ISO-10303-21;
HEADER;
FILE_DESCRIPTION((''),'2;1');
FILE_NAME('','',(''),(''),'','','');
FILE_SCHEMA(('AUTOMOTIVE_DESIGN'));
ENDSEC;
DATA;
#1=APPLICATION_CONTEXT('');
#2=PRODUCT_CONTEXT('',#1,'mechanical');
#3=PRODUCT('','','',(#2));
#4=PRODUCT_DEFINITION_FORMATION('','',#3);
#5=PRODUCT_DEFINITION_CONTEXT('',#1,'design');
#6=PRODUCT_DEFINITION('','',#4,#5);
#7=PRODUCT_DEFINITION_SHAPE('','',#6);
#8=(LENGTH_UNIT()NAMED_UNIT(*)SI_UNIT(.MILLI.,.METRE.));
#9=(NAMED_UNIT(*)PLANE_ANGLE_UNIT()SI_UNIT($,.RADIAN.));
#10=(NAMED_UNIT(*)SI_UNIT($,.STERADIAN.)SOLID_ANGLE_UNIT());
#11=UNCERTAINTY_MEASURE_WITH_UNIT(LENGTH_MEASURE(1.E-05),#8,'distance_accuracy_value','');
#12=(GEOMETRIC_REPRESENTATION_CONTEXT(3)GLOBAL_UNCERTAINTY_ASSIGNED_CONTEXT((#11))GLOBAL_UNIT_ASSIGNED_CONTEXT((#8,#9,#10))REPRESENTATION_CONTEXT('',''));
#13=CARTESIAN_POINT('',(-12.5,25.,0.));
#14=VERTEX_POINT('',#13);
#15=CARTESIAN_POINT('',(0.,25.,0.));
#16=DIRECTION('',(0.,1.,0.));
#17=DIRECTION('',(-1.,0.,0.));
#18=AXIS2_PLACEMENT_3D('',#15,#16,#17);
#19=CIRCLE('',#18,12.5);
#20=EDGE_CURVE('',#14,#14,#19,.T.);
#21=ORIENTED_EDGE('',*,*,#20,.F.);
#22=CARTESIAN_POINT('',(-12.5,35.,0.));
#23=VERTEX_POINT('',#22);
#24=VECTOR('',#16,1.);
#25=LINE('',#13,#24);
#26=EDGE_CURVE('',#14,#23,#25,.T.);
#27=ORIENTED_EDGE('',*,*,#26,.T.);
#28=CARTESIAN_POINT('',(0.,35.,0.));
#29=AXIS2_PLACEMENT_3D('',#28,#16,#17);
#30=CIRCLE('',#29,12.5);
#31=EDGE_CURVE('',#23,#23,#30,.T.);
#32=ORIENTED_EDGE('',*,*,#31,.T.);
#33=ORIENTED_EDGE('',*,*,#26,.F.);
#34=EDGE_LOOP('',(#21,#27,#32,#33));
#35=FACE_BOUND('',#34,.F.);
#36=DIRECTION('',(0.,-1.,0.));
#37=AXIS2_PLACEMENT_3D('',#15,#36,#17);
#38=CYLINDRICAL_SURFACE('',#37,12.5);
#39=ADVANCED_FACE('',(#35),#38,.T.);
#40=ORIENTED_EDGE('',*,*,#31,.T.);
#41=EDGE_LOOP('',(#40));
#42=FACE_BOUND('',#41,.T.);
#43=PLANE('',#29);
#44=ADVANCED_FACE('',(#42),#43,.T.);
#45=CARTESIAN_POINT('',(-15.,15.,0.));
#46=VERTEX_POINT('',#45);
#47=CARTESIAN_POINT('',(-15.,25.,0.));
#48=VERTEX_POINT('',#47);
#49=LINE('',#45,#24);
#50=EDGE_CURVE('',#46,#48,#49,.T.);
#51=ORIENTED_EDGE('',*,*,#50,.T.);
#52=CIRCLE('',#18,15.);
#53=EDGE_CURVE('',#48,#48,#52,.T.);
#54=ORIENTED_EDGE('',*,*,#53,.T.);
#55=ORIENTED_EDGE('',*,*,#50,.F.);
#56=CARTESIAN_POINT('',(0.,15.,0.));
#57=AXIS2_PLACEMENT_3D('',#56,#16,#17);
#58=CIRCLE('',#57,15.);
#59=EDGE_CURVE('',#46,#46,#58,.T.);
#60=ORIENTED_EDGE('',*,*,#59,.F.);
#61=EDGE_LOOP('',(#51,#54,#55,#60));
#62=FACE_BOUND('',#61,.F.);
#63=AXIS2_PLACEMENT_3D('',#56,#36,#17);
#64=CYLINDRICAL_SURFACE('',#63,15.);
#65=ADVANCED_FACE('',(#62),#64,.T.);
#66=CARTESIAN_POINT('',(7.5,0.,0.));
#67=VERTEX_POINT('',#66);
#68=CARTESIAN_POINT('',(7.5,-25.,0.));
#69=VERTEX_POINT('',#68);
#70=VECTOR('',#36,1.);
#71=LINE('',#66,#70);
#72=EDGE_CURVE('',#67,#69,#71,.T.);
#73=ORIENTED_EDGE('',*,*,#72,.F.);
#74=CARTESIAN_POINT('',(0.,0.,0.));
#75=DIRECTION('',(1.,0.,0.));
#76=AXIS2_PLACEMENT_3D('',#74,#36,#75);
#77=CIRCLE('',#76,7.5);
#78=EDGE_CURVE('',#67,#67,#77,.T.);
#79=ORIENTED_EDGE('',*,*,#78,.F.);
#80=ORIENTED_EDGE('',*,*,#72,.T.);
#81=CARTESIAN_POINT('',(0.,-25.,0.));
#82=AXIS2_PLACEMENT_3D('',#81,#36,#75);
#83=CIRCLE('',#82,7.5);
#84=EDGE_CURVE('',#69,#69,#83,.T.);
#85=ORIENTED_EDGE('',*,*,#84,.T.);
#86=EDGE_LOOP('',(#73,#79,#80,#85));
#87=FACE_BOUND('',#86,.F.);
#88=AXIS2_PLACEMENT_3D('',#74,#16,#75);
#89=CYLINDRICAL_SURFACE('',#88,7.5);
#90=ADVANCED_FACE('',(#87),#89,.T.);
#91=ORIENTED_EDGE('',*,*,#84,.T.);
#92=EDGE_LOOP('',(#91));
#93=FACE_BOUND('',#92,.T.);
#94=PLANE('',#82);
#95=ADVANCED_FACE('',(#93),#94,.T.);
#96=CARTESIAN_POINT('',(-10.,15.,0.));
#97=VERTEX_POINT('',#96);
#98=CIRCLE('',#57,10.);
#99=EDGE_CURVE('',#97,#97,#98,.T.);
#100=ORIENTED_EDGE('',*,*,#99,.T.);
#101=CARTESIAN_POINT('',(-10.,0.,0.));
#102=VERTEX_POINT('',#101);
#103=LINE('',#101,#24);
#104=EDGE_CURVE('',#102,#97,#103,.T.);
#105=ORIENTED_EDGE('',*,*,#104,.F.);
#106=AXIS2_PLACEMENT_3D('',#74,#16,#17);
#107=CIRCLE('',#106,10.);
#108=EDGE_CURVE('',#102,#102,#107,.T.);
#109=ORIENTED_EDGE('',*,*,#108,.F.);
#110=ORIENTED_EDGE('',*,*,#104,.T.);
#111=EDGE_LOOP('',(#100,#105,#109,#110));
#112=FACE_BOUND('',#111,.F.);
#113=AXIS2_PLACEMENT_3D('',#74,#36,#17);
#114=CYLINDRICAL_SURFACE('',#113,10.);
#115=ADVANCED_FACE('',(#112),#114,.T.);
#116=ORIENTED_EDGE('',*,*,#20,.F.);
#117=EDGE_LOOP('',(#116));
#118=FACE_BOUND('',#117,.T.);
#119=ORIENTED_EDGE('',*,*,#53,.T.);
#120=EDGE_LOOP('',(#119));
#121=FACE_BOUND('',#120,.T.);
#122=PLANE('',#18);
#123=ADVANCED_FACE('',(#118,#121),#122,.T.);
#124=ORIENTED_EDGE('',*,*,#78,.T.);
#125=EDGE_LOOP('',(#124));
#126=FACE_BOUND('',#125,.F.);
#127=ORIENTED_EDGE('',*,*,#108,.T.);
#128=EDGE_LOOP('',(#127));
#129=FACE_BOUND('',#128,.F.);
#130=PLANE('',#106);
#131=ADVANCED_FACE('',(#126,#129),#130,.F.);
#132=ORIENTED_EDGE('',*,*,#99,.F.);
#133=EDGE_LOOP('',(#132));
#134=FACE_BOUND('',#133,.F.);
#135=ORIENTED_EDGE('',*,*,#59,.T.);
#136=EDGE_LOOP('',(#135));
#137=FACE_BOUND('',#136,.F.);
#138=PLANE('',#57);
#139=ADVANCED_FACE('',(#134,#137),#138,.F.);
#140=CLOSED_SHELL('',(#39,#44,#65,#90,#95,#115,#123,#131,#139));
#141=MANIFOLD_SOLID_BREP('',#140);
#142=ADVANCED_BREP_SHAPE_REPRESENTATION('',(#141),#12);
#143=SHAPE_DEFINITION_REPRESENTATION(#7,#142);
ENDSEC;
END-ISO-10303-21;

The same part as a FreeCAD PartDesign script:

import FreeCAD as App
import Part
import Sketcher

V = App.Vector

doc = App.newDocument("Part")
body = doc.addObject("PartDesign::Body", "Body")

# Sketch on XZ plane
sketch1 = doc.addObject("Sketcher::SketchObject", "Sketch")
body.addObject(sketch1)
sketch1.AttachmentSupport = (doc.XZ_Plane, [""])
sketch1.MapMode = "FlatFace"
sketch1.addGeometry(Part.Circle(V(0, 0, 0), V(0, 0, 1), 7.5), False)
sketch1.addConstraint([
    Sketcher.Constraint("Coincident", 0, 3, -1, 1),
    Sketcher.Constraint("Diameter", 0, 15.0),
])
pad1 = doc.addObject("PartDesign::Pad", "Pad")
body.addObject(pad1)
pad1.Profile = sketch1
pad1.Length = 25

# Sketch on XZ plane
sketch2 = doc.addObject("Sketcher::SketchObject", "Sketch001")
body.addObject(sketch2)
sketch2.AttachmentSupport = (doc.XZ_Plane, [""])
sketch2.MapMode = "FlatFace"
sketch2.addGeometry(Part.Circle(V(0, 0, 0), V(0, 0, 1), 10), False)
sketch2.addConstraint([
    Sketcher.Constraint("Coincident", 0, 3, -1, 1),
    Sketcher.Constraint("Diameter", 0, 20.0),
])
pad2 = doc.addObject("PartDesign::Pad", "Pad001")
body.addObject(pad2)
pad2.Profile = sketch2
pad2.Length = 15
pad2.Reversed = True

# Sketch on XZ plane
sketch3 = doc.addObject("Sketcher::SketchObject", "Sketch002")
body.addObject(sketch3)
sketch3.AttachmentSupport = (doc.XZ_Plane, [""])
sketch3.MapMode = "FlatFace"
sketch3.AttachmentOffset = App.Placement(V(0, 0, -15), App.Rotation())
sketch3.addGeometry(Part.Circle(V(0, 0, 0), V(0, 0, 1), 15), False)
sketch3.addConstraint([
    Sketcher.Constraint("Coincident", 0, 3, -1, 1),
    Sketcher.Constraint("Diameter", 0, 30.0),
])
pad3 = doc.addObject("PartDesign::Pad", "Pad002")
body.addObject(pad3)
pad3.Profile = sketch3
pad3.Length = 10
pad3.Reversed = True

# Sketch on XZ plane
sketch4 = doc.addObject("Sketcher::SketchObject", "Sketch003")
body.addObject(sketch4)
sketch4.AttachmentSupport = (doc.XZ_Plane, [""])
sketch4.MapMode = "FlatFace"
sketch4.AttachmentOffset = App.Placement(V(0, 0, -25), App.Rotation())
sketch4.addGeometry(Part.Circle(V(0, 0, 0), V(0, 0, 1), 12.5), False)
sketch4.addConstraint([
    Sketcher.Constraint("Coincident", 0, 3, -1, 1),
    Sketcher.Constraint("Diameter", 0, 25.0),
])
pad4 = doc.addObject("PartDesign::Pad", "Pad003")
body.addObject(pad4)
pad4.Profile = sketch4
pad4.Length = 10
pad4.Reversed = True

doc.recompute()
